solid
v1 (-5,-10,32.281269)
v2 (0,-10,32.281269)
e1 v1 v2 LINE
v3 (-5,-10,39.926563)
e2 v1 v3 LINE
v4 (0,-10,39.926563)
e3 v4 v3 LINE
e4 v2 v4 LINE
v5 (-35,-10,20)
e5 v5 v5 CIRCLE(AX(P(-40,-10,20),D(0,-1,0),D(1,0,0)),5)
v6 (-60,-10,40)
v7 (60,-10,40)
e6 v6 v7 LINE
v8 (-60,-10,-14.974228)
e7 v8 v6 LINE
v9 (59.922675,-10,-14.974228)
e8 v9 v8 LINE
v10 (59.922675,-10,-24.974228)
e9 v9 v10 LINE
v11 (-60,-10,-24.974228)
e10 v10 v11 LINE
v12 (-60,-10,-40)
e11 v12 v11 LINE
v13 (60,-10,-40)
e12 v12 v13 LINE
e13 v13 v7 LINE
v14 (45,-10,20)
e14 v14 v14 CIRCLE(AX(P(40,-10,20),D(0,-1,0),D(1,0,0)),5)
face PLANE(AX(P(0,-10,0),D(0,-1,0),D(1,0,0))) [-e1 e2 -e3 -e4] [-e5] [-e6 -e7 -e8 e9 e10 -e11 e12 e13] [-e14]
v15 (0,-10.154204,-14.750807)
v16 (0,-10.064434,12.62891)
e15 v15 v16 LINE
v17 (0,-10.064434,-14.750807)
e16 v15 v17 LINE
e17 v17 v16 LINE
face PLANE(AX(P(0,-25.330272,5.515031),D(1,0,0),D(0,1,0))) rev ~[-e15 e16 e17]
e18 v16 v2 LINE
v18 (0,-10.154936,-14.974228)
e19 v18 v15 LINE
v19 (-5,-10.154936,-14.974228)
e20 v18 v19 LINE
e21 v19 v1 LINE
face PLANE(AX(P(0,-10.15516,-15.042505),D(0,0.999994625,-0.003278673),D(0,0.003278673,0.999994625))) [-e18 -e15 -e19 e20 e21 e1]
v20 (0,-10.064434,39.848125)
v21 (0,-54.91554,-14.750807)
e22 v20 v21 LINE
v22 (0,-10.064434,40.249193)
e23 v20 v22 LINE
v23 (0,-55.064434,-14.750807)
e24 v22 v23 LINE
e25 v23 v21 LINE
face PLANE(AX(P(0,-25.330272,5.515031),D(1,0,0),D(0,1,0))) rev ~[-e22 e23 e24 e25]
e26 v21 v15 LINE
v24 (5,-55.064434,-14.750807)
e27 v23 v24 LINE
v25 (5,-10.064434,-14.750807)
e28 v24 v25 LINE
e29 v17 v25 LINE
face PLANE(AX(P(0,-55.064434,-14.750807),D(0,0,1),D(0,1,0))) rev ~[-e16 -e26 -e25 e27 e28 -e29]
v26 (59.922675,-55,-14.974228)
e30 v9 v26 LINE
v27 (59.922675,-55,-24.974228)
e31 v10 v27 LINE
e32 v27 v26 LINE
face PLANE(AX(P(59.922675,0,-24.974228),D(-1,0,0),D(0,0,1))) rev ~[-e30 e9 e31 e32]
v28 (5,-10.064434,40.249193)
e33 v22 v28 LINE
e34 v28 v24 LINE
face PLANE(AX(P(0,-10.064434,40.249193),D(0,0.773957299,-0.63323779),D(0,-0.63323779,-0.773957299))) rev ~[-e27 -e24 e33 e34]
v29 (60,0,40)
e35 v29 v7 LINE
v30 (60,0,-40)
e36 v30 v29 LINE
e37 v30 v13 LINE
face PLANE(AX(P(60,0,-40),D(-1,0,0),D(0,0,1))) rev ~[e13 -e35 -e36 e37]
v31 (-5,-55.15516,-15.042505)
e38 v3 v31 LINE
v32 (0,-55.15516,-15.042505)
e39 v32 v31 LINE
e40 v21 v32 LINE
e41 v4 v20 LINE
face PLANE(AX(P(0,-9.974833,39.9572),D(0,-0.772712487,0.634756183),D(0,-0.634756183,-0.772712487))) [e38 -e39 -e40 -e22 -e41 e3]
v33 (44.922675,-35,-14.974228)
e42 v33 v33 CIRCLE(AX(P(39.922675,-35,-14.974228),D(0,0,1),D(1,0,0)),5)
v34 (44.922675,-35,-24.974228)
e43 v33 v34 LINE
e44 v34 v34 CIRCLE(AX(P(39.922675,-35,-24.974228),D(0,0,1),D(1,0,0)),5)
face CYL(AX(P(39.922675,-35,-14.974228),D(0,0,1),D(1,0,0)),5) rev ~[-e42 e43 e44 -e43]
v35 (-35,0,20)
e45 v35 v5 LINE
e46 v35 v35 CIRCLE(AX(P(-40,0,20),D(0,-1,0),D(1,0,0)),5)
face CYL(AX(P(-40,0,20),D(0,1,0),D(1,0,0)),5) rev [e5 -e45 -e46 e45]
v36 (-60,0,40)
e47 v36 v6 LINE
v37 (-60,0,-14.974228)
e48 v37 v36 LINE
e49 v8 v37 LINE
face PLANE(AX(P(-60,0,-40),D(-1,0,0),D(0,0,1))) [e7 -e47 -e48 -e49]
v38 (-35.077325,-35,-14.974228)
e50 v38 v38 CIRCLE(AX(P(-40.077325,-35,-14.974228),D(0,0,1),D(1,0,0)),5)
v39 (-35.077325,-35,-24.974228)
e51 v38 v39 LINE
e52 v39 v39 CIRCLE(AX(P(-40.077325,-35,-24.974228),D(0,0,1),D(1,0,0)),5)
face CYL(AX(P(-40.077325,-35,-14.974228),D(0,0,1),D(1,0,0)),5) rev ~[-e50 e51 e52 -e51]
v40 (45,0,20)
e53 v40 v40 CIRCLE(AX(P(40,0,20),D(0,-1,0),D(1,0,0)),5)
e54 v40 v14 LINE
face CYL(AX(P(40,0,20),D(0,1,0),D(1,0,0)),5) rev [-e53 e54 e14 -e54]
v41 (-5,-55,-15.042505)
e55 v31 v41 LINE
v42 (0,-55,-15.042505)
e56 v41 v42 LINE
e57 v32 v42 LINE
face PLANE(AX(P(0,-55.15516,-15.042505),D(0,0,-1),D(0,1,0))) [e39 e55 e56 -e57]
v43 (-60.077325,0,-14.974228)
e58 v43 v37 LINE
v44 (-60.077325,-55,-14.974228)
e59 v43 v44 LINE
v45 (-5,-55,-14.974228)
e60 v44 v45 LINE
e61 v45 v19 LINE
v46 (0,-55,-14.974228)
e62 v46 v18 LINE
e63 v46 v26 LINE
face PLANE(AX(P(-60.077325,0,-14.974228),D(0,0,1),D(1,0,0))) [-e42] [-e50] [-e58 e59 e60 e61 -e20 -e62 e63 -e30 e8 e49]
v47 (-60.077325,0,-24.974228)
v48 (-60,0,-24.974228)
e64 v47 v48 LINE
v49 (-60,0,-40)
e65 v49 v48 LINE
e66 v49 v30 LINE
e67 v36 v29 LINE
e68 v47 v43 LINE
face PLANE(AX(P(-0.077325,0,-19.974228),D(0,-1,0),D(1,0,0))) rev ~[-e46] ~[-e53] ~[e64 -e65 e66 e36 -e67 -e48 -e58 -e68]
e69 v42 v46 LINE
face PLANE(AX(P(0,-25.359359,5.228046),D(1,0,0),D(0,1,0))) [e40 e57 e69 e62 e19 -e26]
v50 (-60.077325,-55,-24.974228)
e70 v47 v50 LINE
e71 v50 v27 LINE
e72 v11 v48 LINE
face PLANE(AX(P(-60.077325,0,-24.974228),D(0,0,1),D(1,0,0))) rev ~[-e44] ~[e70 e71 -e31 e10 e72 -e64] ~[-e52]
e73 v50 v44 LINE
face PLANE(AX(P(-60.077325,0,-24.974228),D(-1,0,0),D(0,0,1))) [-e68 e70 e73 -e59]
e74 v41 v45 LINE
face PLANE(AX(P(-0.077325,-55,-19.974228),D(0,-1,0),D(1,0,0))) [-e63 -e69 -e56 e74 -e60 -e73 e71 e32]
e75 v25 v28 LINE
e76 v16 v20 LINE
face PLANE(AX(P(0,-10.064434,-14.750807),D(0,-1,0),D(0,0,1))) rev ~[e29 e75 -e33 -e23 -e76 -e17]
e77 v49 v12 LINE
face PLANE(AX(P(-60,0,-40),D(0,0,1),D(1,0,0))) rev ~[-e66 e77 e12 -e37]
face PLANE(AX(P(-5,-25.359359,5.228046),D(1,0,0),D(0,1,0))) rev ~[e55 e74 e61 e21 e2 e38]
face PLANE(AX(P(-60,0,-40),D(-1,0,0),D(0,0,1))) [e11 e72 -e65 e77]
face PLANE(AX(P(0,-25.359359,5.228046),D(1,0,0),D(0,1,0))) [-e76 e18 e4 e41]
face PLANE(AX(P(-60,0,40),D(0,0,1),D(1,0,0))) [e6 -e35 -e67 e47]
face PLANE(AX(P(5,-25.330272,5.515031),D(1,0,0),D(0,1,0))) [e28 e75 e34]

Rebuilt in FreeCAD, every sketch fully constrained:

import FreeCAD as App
import Part
import Sketcher
Q = App.Units.Quantity


def add_polygon(sketch, points):
    """Adds a closed chain of lines whose ends are joined by coincident constraints."""
    first, n = sketch.GeometryCount, len(points)
    for a, b in zip(points, points[1:] + points[:1]):
        sketch.addGeometry(Part.LineSegment(App.Vector(*a, 0), App.Vector(*b, 0)), False)
    for i in range(n):
        sketch.addConstraint(Sketcher.Constraint("Coincident", first + i, 2, first + (i + 1) % n, 1))

doc = App.newDocument("Part")
params = doc.addObject("Spreadsheet::Sheet", "Params")
for row, (alias, value) in enumerate([
    ("sketch1_diameter", "10 mm"),
    ("sketch1_width", "120 mm"),
    ("sketch1_height", "80 mm"),
    ("pad1_length", "10 mm"),
    ("sketch2_width", "120 mm"),
    ("sketch2_height", "10 mm"),
    ("pad2_length", "55 mm"),
    ("sketch3_diameter", "10 mm"),
    ("pocket1_length", "25 mm"),
    ("sketch4_width", "45 mm"),
    ("sketch4_length", "55.000001 mm"),
    ("pad3_length", "5 mm"),
    ("sketch5_width", "45 mm"),
    ("sketch5_height", "55 mm"),
    ("pad4_length", "5 mm"),
], start=1):
    params.set(f"A{row}", alias)
    params.set(f"B{row}", "=" + value)
    params.setAlias(f"B{row}", alias)

body = doc.addObject("PartDesign::Body", "Body")

sketch1 = body.newObject("Sketcher::SketchObject", "Sketch")
sketch1.AttachmentSupport = (doc.getObject("XZ_Plane"), [""])
sketch1.MapMode = "FlatFace"
add_polygon(sketch1, [(-60, 40), (-60, -40), (60, -40), (60, 40)])
sketch1.addGeometry(Part.Circle(App.Vector(-40, 20, 0), App.Vector(0, 0, 1), 5), False)
sketch1.addGeometry(Part.Circle(App.Vector(40, 20, 0), App.Vector(0, 0, 1), 5), False)
sketch1.addConstraint(Sketcher.Constraint("Vertical", 0))
sketch1.addConstraint(Sketcher.Constraint("Horizontal", 1))
sketch1.addConstraint(Sketcher.Constraint("Vertical", 2))
sketch1.addConstraint(Sketcher.Constraint("Horizontal", 3))
sketch1.addConstraint(Sketcher.Constraint("Equal", 4, 5))
sketch1.addConstraint(Sketcher.Constraint("Symmetric", 0, 2, 2, 2, -1, 1))
sketch1.addConstraint(Sketcher.Constraint("Symmetric", 4, 3, 5, 3, -2))
sketch1.addConstraint(Sketcher.Constraint("Diameter", 4, Q("10 mm")))
sketch1.addConstraint(Sketcher.Constraint("DistanceX", 1, 1, 1, 2, Q("120 mm")))
sketch1.addConstraint(Sketcher.Constraint("DistanceY", 0, 2, 0, 1, Q("80 mm")))
sketch1.addConstraint(Sketcher.Constraint("DistanceX", 4, 3, -1, 1, Q("40 mm")))
sketch1.addConstraint(Sketcher.Constraint("DistanceY", -1, 1, 4, 3, Q("20 mm")))
sketch1.setExpression("Constraints[11]", "Params.sketch1_diameter")
sketch1.setExpression("Constraints[12]", "Params.sketch1_width")
sketch1.setExpression("Constraints[13]", "Params.sketch1_height")
pad1 = body.newObject("PartDesign::Pad", "Pad")
pad1.Profile = sketch1
pad1.setExpression("Length", "Params.pad1_length")

sketch2 = body.newObject("Sketcher::SketchObject", "Sketch001")
sketch2.AttachmentSupport = (doc.getObject("XZ_Plane"), [""])
sketch2.MapMode = "FlatFace"
add_polygon(sketch2, [(-60.077325, -14.974228), (-60.077325, -24.974228), (59.922675, -24.974228), (59.922675, -14.974228)])
sketch2.addConstraint(Sketcher.Constraint("Vertical", 0))
sketch2.addConstraint(Sketcher.Constraint("Horizontal", 1))
sketch2.addConstraint(Sketcher.Constraint("Vertical", 2))
sketch2.addConstraint(Sketcher.Constraint("Horizontal", 3))
sketch2.addConstraint(Sketcher.Constraint("DistanceX", 1, 1, 1, 2, Q("120 mm")))
sketch2.addConstraint(Sketcher.Constraint("DistanceY", 0, 2, 0, 1, Q("10 mm")))
sketch2.addConstraint(Sketcher.Constraint("DistanceY", 0, 2, -1, 1, Q("24.974228 mm")))
sketch2.addConstraint(Sketcher.Constraint("DistanceX", 0, 2, -1, 1, Q("60.077325 mm")))
sketch2.setExpression("Constraints[8]", "Params.sketch2_width")
sketch2.setExpression("Constraints[9]", "Params.sketch2_height")
pad2 = body.newObject("PartDesign::Pad", "Pad001")
pad2.Profile = sketch2
pad2.setExpression("Length", "Params.pad2_length")

sketch3 = body.newObject("Sketcher::SketchObject", "Sketch002")
sketch3.AttachmentSupport = (doc.getObject("XY_Plane"), [""])
sketch3.MapMode = "FlatFace"
sketch3.AttachmentOffset = App.Placement(App.Vector(0, 0, -14.974228), App.Rotation())
sketch3.addGeometry(Part.Circle(App.Vector(-40.077325, -35, 0), App.Vector(0, 0, 1), 5), False)
sketch3.addGeometry(Part.Circle(App.Vector(39.922675, -35, 0), App.Vector(0, 0, 1), 5), False)
sketch3.addConstraint(Sketcher.Constraint("Equal", 0, 1))
sketch3.addConstraint(Sketcher.Constraint("Horizontal", 0, 3, 1, 3))
sketch3.addConstraint(Sketcher.Constraint("Diameter", 0, Q("10 mm")))
sketch3.addConstraint(Sketcher.Constraint("DistanceY", 0, 3, -1, 1, Q("35 mm")))
sketch3.addConstraint(Sketcher.Constraint("DistanceX", 0, 3, 1, 3, Q("80 mm")))
sketch3.addConstraint(Sketcher.Constraint("DistanceX", 0, 3, -1, 1, Q("40.077325 mm")))
sketch3.setExpression("Constraints[2]", "Params.sketch3_diameter")
pocket1 = body.newObject("PartDesign::Pocket", "Pocket")
pocket1.Profile = sketch3
pocket1.setExpression("Length", "Params.pocket1_length")

sketch4 = body.newObject("Sketcher::SketchObject", "Sketch003")
sketch4.AttachmentSupport = (doc.getObject("YZ_Plane"), [""])
sketch4.MapMode = "FlatFace"
add_polygon(sketch4, [(-10.15516, -15.042505), (-9.974833, 39.9572), (-55.15516, -15.042505)])
sketch4.addConstraint(Sketcher.Constraint("Horizontal", 2))
sketch4.addConstraint(Sketcher.Constraint("DistanceX", 2, 1, 2, 2, Q("45 mm")))
sketch4.addConstraint(Sketcher.Constraint("Distance", 0, Q("55.000001 mm")))
sketch4.addConstraint(Sketcher.Constraint("DistanceY", -1, 1, 0, 2, Q("39.9572 mm")))
sketch4.addConstraint(Sketcher.Constraint("Distance", 1, Q("71.177451 mm")))
sketch4.addConstraint(Sketcher.Constraint("DistanceX", 1, 2, -1, 1, Q("55.15516 mm")))
sketch4.setExpression("Constraints[4]", "Params.sketch4_width")
sketch4.setExpression("Constraints[5]", "Params.sketch4_length")
pad3 = body.newObject("PartDesign::Pad", "Pad002")
pad3.Profile = sketch4
pad3.setExpression("Length", "Params.pad3_length")
pad3.Reversed = True

sketch5 = body.newObject("Sketcher::SketchObject", "Sketch004")
sketch5.AttachmentSupport = (doc.getObject("YZ_Plane"), [""])
sketch5.MapMode = "FlatFace"
add_polygon(sketch5, [(-10.064434, -14.750807), (-10.064434, 40.249193), (-55.064434, -14.750807)])
sketch5.addConstraint(Sketcher.Constraint("Vertical", 0))
sketch5.addConstraint(Sketcher.Constraint("Horizontal", 2))
sketch5.addConstraint(Sketcher.Constraint("DistanceX", 2, 1, 2, 2, Q("45 mm")))
sketch5.addConstraint(Sketcher.Constraint("DistanceY", 0, 1, 0, 2, Q("55 mm")))
sketch5.addConstraint(Sketcher.Constraint("DistanceX", 0, 2, -1, 1, Q("10.064434 mm")))
sketch5.addConstraint(Sketcher.Constraint("DistanceY", -1, 1, 0, 2, Q("40.249193 mm")))
sketch5.setExpression("Constraints[5]", "Params.sketch5_width")
sketch5.setExpression("Constraints[6]", "Params.sketch5_height")
pad4 = body.newObject("PartDesign::Pad", "Pad003")
pad4.Profile = sketch5
pad4.setExpression("Length", "Params.pad4_length")

doc.recompute()
